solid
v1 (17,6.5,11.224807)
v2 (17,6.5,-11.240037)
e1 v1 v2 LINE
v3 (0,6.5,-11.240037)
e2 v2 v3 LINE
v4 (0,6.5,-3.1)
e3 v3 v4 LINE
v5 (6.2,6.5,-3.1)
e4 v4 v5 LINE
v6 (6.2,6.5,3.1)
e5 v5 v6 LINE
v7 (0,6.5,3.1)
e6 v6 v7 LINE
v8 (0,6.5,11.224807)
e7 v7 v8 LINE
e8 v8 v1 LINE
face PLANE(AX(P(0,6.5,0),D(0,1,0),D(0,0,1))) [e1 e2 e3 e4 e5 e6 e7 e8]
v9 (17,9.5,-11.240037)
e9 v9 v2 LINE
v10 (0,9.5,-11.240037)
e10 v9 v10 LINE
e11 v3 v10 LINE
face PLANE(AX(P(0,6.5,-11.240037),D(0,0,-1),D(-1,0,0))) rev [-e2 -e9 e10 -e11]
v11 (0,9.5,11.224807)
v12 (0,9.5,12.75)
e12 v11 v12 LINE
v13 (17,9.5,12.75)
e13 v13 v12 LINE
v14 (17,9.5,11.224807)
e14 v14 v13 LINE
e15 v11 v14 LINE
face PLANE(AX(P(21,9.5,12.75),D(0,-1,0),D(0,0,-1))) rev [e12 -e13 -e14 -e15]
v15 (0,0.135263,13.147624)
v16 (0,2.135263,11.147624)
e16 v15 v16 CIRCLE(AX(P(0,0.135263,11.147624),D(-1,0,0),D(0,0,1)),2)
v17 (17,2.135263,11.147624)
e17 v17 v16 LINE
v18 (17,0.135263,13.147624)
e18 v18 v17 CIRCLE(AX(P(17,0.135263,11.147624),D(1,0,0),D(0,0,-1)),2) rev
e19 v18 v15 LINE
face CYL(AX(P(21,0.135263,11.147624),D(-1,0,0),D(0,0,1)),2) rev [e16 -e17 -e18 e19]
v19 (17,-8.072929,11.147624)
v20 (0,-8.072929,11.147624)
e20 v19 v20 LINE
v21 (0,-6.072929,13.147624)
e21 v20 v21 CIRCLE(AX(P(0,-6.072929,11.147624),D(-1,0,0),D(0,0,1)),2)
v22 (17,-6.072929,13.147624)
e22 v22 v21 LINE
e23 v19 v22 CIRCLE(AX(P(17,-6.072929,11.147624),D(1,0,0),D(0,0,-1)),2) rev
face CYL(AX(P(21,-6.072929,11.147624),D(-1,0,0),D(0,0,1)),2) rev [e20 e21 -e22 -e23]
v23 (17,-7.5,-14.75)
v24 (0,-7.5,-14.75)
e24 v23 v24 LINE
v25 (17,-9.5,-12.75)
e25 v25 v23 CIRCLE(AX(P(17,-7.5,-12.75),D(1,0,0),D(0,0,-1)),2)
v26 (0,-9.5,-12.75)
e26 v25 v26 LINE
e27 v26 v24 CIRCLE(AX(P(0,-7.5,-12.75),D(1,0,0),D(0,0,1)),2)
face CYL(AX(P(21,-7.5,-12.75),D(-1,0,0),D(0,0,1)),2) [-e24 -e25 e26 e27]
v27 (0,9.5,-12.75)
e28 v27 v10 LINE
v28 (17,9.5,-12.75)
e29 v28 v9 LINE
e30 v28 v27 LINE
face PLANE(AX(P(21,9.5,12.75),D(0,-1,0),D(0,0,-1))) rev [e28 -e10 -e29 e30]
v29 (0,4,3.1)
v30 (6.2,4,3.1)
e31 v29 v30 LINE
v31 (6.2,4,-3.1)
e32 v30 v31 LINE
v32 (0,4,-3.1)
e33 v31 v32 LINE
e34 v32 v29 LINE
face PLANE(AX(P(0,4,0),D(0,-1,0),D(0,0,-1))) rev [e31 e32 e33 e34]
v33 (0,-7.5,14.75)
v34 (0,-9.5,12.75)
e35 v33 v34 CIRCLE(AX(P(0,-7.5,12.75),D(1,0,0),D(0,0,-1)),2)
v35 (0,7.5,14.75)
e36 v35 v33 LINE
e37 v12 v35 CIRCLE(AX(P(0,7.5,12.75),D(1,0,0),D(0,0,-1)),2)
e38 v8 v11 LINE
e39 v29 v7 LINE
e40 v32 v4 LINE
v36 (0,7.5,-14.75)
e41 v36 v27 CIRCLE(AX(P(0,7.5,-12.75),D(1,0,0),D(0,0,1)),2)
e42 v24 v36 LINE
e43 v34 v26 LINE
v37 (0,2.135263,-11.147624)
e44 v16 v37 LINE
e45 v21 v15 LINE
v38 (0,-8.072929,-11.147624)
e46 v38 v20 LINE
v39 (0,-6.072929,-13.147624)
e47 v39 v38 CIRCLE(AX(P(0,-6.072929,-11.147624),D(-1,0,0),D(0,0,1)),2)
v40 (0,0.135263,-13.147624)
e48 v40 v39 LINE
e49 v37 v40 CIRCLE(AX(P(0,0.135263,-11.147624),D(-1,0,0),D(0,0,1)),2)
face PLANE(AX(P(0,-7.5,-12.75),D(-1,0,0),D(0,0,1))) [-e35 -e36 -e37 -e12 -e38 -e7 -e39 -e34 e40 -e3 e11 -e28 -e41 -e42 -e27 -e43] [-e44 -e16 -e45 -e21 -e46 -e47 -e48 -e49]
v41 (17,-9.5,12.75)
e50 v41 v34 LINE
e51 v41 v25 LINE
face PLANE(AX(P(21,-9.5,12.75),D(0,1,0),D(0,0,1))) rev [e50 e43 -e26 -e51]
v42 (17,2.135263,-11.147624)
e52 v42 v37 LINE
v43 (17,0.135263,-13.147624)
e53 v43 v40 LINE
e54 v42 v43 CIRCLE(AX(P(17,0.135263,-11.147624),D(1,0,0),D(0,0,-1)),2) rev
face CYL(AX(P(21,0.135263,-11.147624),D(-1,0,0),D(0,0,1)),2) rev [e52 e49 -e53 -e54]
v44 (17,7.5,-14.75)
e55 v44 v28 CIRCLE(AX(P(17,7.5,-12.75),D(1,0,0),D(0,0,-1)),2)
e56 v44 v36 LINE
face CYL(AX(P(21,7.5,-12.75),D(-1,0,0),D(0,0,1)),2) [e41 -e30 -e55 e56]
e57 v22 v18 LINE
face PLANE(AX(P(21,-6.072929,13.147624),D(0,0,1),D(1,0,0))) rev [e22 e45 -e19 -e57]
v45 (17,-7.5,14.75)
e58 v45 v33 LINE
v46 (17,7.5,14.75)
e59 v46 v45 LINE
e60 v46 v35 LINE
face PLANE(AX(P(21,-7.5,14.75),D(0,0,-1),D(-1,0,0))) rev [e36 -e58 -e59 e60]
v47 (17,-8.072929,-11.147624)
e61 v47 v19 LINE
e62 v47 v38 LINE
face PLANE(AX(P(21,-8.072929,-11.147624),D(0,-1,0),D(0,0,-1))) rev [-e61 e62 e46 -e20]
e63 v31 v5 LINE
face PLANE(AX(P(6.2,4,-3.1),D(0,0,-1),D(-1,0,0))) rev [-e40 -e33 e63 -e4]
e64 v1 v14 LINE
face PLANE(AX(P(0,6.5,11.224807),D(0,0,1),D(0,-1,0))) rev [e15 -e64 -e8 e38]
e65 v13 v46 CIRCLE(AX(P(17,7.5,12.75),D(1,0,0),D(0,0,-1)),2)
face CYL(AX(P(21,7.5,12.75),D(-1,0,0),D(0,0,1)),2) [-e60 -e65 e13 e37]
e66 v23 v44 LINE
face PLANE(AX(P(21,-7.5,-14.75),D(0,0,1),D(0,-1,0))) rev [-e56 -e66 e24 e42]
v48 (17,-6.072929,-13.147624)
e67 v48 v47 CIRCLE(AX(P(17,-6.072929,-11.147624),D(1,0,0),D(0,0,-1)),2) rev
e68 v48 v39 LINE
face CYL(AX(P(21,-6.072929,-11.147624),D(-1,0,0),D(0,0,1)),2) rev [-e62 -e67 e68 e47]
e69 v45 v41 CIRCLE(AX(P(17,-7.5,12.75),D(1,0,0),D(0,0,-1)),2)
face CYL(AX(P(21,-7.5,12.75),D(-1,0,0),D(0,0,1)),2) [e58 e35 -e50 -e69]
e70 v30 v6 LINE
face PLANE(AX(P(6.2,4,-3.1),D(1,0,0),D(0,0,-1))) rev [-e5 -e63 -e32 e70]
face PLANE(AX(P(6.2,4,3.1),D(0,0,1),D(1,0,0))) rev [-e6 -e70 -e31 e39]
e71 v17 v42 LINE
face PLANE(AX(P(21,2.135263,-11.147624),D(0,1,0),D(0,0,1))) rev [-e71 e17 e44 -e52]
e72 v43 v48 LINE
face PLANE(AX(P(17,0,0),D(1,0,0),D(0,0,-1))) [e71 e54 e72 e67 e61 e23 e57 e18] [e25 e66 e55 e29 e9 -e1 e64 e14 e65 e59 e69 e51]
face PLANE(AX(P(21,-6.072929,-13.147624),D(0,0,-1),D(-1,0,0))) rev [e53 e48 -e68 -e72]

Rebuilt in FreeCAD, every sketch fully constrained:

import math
import FreeCAD as App
import Part
import Sketcher
from FreeCAD import Vector


def add_polygon(sketch, points):
    """Adds a closed chain of lines whose ends are joined by coincident constraints."""
    first, n = sketch.GeometryCount, len(points)
    for a, b in zip(points, points[1:] + points[:1]):
        sketch.addGeometry(Part.LineSegment(App.Vector(*a, 0), App.Vector(*b, 0)), False)
    for i in range(n):
        sketch.addConstraint(Sketcher.Constraint("Coincident", first + i, 2, first + (i + 1) % n, 1))

doc = App.newDocument("Part")
body = doc.addObject("PartDesign::Body", "Body")

sketch1 = doc.addObject("Sketcher::SketchObject", "Sketch")
body.addObject(sketch1)
sketch1.AttachmentSupport = (doc.YZ_Plane, [""])
sketch1.MapMode = "FlatFace"
sketch1.addGeometry([
    Part.LineSegment(Vector(-9.5, 12.8, 0), Vector(-9.5, -12.8, 0)),
    Part.ArcOfCircle(Part.Circle(Vector(-7.5, -12.7, 0), Vector(0, 0, 1), 2), math.radians(-180), math.radians(-90)),
    Part.LineSegment(Vector(-7.5, -14.8, 0), Vector(7.5, -14.8, 0)),
    Part.ArcOfCircle(Part.Circle(Vector(7.5, -12.7, 0), Vector(0, 0, 1), 2), math.radians(-90), math.radians(0)),
    Part.LineSegment(Vector(9.5, -12.8, 0), Vector(9.5, 12.8, 0)),
    Part.ArcOfCircle(Part.Circle(Vector(7.5, 12.7, 0), Vector(0, 0, 1), 2), math.radians(0), math.radians(90)),
    Part.LineSegment(Vector(7.5, 14.8, 0), Vector(-7.5, 14.8, 0)),
    Part.ArcOfCircle(Part.Circle(Vector(-7.5, 12.7, 0), Vector(0, 0, 1), 2), math.radians(90), math.radians(180)),
], False)
sketch1.addConstraint([
    Sketcher.Constraint("Tangent", 0, 2, 1, 1),
    Sketcher.Constraint("Tangent", 1, 2, 2, 1),
    Sketcher.Constraint("Tangent", 2, 2, 3, 1),
    Sketcher.Constraint("Tangent", 3, 2, 4, 1),
    Sketcher.Constraint("Tangent", 4, 2, 5, 1),
    Sketcher.Constraint("Tangent", 5, 2, 6, 1),
    Sketcher.Constraint("Tangent", 6, 2, 7, 1),
    Sketcher.Constraint("Tangent", 7, 2, 0, 1),
    Sketcher.Constraint("Vertical", 0),
    Sketcher.Constraint("Horizontal", 2),
    Sketcher.Constraint("Vertical", 4),
    Sketcher.Constraint("Horizontal", 6),
    Sketcher.Constraint("Equal", 1, 3),
    Sketcher.Constraint("Equal", 3, 5),
    Sketcher.Constraint("Equal", 5, 7),
    Sketcher.Constraint("Symmetric", 1, 3, 5, 3, -1, 1),
    Sketcher.Constraint("Radius", 1, 2.0),
    Sketcher.Constraint("DistanceX", 2, 1, 2, 2, 15.0),
    Sketcher.Constraint("DistanceY", 0, 2, 0, 1, 25.5),
])
pad1 = doc.addObject("PartDesign::Pad", "Pad")
body.addObject(pad1)
pad1.Profile = sketch1
pad1.Length = 21

sketch2 = doc.addObject("Sketcher::SketchObject", "Sketch001")
body.addObject(sketch2)
sketch2.AttachmentSupport = (doc.XZ_Plane, [""])
sketch2.MapMode = "FlatFace"
sketch2.AttachmentOffset = App.Placement(Vector(0, 0, -9.5), App.Rotation())
add_polygon(sketch2, [(0, -3), (0, 3), (6, 3), (6, -3)])
sketch2.addConstraint([
    Sketcher.Constraint("Vertical", 0),
    Sketcher.Constraint("Horizontal", 1),
    Sketcher.Constraint("Vertical", 2),
    Sketcher.Constraint("Horizontal", 3),
    Sketcher.Constraint("Symmetric", 0, 2, 3, 2, -1, 1),
    Sketcher.Constraint("Equal", 3, 0),
    Sketcher.Constraint("DistanceX", 1, 1, 1, 2, 6.2),
])
pocket1 = doc.addObject("PartDesign::Pocket", "Pocket")
body.addObject(pocket1)
pocket1.Profile = sketch2
pocket1.Length = 5.5
pocket1.Reversed = True

sketch3 = doc.addObject("Sketcher::SketchObject", "Sketch002")
body.addObject(sketch3)
sketch3.AttachmentSupport = (doc.YZ_Plane, [""])
sketch3.MapMode = "FlatFace"
sketch3.addGeometry([
    Part.LineSegment(Vector(-8.1, -11.1, 0), Vector(-8.1, 11.1, 0)),
    Part.ArcOfCircle(Part.Circle(Vector(-6.1, 11.1, 0), Vector(0, 0, 1), 2), math.radians(90), math.radians(180)),
    Part.LineSegment(Vector(-6.1, 13.1, 0), Vector(0.1, 13.1, 0)),
    Part.ArcOfCircle(Part.Circle(Vector(0.1, 11.1, 0), Vector(0, 0, 1), 2), math.radians(0), math.radians(90)),
    Part.LineSegment(Vector(2.1, 11.1, 0), Vector(2.1, -11.1, 0)),
    Part.ArcOfCircle(Part.Circle(Vector(0.1, -11.1, 0), Vector(0, 0, 1), 2), math.radians(-90), math.radians(0)),
    Part.LineSegment(Vector(0.1, -13.1, 0), Vector(-6.1, -13.1, 0)),
    Part.ArcOfCircle(Part.Circle(Vector(-6.1, -11.1, 0), Vector(0, 0, 1), 2), math.radians(-180), math.radians(-90)),
], False)
sketch3.addConstraint([
    Sketcher.Constraint("Tangent", 0, 2, 1, 2),
    Sketcher.Constraint("Tangent", 1, 1, 2, 1),
    Sketcher.Constraint("Tangent", 2, 2, 3, 2),
    Sketcher.Constraint("Tangent", 3, 1, 4, 1),
    Sketcher.Constraint("Tangent", 4, 2, 5, 2),
    Sketcher.Constraint("Tangent", 5, 1, 6, 1),
    Sketcher.Constraint("Tangent", 6, 2, 7, 2),
    Sketcher.Constraint("Tangent", 7, 1, 0, 1),
    Sketcher.Constraint("Vertical", 0),
    Sketcher.Constraint("Horizontal", 2),
    Sketcher.Constraint("Vertical", 4),
    Sketcher.Constraint("Horizontal", 6),
    Sketcher.Constraint("Equal", 1, 3),
    Sketcher.Constraint("Equal", 3, 5),
    Sketcher.Constraint("Equal", 5, 7),
    Sketcher.Constraint("Radius", 1, 2.0),
    Sketcher.Constraint("DistanceX", 2, 1, 2, 2, 6.208192),
    Sketcher.Constraint("DistanceY", 0, 1, 0, 2, 22.295247),
    Sketcher.Constraint("DistanceX", 1, 3, -1, 1, 6.072929),
    Sketcher.Constraint("DistanceY", -1, 1, 1, 3, 11.147624),
])
pocket2 = doc.addObject("PartDesign::Pocket", "Pocket001")
body.addObject(pocket2)
pocket2.Profile = sketch3
pocket2.Type = "ThroughAll"
pocket2.Midplane = True

sketch4 = doc.addObject("Sketcher::SketchObject", "Sketch003")
body.addObject(sketch4)
sketch4.AttachmentSupport = (doc.XZ_Plane, [""])
sketch4.MapMode = "FlatFace"
sketch4.AttachmentOffset = App.Placement(Vector(0, 0, -9.5), App.Rotation())
add_polygon(sketch4, [(0, -11), (0, 11), (24, 11), (24, -11)])
sketch4.addConstraint([
    Sketcher.Constraint("Vertical", 0),
    Sketcher.Constraint("Horizontal", 1),
    Sketcher.Constraint("Vertical", 2),
    Sketcher.Constraint("Horizontal", 3),
    Sketcher.Constraint("PointOnObject", 0, 2, -2),
    Sketcher.Constraint("DistanceX", 1, 1, 1, 2, 24.28485),
    Sketcher.Constraint("DistanceY", 0, 1, 0, 2, 22.464844),
    Sketcher.Constraint("DistanceY", -1, 1, 0, 2, 11.224807),
])
pocket3 = doc.addObject("PartDesign::Pocket", "Pocket002")
body.addObject(pocket3)
pocket3.Profile = sketch4
pocket3.Length = 3
pocket3.Reversed = True

sketch5 = doc.addObject("Sketcher::SketchObject", "Sketch004")
body.addObject(sketch5)
sketch5.AttachmentSupport = (doc.YZ_Plane, [""])
sketch5.MapMode = "FlatFace"
sketch5.AttachmentOffset = App.Placement(Vector(0, 0, 21), App.Rotation())
add_polygon(sketch5, [(11, 16), (-10, 16), (-10, -16), (11, -16)])
sketch5.addConstraint([
    Sketcher.Constraint("Horizontal", 0),
    Sketcher.Constraint("Vertical", 1),
    Sketcher.Constraint("Horizontal", 2),
    Sketcher.Constraint("Vertical", 3),
    Sketcher.Constraint("DistanceY", 1, 2, 1, 1, 31.815902),
    Sketcher.Constraint("DistanceX", 0, 2, 0, 1, 21.673324),
    Sketcher.Constraint("DistanceX", 0, 2, -1, 1, 10.388866),
    Sketcher.Constraint("DistanceY", -1, 1, 0, 2, 15.919146),
])
pocket4 = doc.addObject("PartDesign::Pocket", "Pocket003")
body.addObject(pocket4)
pocket4.Profile = sketch5
pocket4.Length = 4

doc.recompute()
